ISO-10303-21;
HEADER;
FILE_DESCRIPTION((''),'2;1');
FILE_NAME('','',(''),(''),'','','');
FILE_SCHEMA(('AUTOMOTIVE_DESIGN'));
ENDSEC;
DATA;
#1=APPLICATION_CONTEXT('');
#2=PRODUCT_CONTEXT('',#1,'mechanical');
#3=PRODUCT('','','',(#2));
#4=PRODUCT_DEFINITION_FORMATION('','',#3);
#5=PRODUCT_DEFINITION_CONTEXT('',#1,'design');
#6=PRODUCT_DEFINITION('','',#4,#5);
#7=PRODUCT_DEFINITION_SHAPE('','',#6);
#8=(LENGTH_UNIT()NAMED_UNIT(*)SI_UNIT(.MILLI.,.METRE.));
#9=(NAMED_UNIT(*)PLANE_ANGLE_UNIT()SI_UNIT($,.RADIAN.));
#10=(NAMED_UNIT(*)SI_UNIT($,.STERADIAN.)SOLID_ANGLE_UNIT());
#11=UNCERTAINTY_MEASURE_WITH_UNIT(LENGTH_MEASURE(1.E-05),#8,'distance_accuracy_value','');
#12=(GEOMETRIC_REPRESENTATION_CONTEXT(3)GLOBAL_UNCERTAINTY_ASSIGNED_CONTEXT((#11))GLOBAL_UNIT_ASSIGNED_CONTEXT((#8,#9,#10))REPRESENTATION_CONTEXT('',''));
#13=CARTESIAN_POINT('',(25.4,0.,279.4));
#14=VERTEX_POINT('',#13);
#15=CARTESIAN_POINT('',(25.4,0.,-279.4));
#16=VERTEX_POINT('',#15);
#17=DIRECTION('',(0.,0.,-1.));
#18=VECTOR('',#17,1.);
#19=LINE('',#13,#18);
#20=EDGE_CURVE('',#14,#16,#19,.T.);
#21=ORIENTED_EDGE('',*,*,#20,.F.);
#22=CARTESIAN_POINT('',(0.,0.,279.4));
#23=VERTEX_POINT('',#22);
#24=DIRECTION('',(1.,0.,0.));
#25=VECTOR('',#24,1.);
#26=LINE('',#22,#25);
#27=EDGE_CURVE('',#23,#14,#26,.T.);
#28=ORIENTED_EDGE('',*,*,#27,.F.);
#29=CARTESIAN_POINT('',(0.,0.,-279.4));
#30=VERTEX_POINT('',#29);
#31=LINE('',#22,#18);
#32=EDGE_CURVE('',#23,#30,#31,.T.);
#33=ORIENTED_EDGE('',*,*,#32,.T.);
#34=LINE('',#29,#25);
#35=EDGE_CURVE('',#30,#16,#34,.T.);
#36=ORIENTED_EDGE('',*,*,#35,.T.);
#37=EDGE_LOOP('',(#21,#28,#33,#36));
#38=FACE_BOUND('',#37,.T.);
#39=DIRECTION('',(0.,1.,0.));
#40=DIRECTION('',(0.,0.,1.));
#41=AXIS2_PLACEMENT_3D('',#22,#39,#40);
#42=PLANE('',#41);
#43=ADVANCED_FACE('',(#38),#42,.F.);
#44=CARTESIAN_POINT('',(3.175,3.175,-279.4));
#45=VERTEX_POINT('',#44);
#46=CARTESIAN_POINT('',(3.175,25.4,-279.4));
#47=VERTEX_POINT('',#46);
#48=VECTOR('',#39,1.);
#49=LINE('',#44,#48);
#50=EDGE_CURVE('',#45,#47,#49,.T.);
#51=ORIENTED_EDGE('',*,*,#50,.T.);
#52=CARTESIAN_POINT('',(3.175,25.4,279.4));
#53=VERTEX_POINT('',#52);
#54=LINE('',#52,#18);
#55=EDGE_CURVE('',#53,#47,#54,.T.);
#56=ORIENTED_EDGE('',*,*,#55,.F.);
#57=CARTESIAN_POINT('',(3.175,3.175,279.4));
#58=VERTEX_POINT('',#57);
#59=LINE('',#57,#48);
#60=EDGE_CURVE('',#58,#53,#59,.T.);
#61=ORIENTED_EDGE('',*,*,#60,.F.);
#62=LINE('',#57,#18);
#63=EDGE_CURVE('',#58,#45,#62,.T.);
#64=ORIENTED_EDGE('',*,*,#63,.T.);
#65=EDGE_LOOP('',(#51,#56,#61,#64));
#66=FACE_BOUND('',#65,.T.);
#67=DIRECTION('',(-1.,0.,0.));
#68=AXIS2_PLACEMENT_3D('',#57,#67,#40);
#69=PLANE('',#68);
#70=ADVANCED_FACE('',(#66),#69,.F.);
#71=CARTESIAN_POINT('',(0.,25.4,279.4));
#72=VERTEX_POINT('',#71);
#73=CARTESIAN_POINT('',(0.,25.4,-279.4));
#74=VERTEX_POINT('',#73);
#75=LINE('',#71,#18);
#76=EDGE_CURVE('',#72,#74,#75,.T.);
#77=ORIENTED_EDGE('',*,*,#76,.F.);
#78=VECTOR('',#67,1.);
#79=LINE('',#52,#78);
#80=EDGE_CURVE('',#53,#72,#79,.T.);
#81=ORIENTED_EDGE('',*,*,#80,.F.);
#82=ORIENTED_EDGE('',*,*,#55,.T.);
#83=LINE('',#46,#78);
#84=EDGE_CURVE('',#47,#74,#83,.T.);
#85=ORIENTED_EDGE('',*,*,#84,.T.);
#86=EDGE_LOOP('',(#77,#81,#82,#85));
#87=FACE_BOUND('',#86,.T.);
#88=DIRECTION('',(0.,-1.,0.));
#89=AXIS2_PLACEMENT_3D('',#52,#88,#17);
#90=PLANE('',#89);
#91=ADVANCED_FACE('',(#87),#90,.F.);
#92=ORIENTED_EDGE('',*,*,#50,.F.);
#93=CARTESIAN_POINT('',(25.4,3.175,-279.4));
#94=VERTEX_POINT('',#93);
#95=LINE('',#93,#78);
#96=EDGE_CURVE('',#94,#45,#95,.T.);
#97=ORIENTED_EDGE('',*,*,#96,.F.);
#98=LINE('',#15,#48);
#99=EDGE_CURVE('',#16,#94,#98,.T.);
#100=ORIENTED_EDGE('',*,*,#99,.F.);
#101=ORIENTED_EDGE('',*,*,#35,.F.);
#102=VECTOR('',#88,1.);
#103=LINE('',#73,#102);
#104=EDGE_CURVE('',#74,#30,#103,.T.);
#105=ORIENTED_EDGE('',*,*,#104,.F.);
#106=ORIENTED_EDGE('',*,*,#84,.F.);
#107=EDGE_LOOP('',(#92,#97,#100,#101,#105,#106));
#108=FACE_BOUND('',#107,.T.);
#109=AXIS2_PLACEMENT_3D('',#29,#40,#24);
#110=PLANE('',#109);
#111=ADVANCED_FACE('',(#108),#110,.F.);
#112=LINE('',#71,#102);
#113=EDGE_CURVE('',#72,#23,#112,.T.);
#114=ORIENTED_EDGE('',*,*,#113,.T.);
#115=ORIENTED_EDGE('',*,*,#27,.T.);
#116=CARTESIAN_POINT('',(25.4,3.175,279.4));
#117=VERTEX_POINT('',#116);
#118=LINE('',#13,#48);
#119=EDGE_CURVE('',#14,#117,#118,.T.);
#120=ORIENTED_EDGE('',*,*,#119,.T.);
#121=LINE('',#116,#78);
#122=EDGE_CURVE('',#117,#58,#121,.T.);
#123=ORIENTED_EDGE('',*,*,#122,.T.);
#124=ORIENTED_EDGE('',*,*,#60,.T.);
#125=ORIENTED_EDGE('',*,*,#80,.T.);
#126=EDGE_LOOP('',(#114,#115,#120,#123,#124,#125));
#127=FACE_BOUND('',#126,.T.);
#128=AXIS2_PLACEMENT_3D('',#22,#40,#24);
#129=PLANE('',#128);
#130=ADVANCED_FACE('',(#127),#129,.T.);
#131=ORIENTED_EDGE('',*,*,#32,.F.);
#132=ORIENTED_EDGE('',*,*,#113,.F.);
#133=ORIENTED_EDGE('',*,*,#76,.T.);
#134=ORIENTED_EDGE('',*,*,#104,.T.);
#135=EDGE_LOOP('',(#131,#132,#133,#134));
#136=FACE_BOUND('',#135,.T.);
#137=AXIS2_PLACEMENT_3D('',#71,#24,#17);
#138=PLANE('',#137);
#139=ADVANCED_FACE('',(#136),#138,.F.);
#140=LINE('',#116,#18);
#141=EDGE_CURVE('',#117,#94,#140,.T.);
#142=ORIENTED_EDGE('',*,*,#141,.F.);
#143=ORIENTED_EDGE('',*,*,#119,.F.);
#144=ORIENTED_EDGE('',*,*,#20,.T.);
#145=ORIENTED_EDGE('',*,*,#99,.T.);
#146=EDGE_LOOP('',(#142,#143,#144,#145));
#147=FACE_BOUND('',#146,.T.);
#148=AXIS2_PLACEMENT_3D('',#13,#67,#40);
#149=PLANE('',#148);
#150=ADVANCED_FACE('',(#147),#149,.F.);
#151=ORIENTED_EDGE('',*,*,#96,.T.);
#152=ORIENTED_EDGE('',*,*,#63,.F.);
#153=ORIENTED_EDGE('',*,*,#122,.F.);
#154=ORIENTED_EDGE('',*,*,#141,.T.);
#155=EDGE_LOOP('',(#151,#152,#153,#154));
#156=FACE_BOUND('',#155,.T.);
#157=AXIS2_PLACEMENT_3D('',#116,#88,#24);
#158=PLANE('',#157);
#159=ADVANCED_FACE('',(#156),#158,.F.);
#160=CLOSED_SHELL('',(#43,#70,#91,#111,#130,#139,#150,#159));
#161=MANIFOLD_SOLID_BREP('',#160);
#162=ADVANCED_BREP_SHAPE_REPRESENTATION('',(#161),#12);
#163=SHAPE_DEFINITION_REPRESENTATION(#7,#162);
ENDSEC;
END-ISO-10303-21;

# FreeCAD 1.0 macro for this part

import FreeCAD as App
import Part
import Sketcher
Q = App.Units.Quantity

doc = App.newDocument("Part")
body = doc.addObject("PartDesign::Body", "Body")

sketch1 = doc.addObject("Sketcher::SketchObject", "Sketch")
body.addObject(sketch1)
sketch1.AttachmentSupport = (doc.XY_Plane, [""])
sketch1.MapMode = "FlatFace"
sketch1.addGeometry(Part.LineSegment(App.Vector(0, 25.4, 0), App.Vector(0, 0, 0)), False)
sketch1.addGeometry(Part.LineSegment(App.Vector(0, 0, 0), App.Vector(25.4, 0, 0)), False)
sketch1.addGeometry(Part.LineSegment(App.Vector(25.4, 0, 0), App.Vector(25.4, 3.175, 0)), False)
sketch1.addGeometry(Part.LineSegment(App.Vector(25.4, 3.175, 0), App.Vector(3.175, 3.175, 0)), False)
sketch1.addGeometry(Part.LineSegment(App.Vector(3.175, 3.175, 0), App.Vector(3.175, 25.4, 0)), False)
sketch1.addGeometry(Part.LineSegment(App.Vector(3.175, 25.4, 0), App.Vector(0, 25.4, 0)), False)
sketch1.addConstraint(Sketcher.Constraint("Coincident", 0, 2, 1, 1))
sketch1.addConstraint(Sketcher.Constraint("Coincident", 1, 2, 2, 1))
sketch1.addConstraint(Sketcher.Constraint("Coincident", 2, 2, 3, 1))
sketch1.addConstraint(Sketcher.Constraint("Coincident", 3, 2, 4, 1))
sketch1.addConstraint(Sketcher.Constraint("Coincident", 4, 2, 5, 1))
sketch1.addConstraint(Sketcher.Constraint("Coincident", 5, 2, 0, 1))
sketch1.addConstraint(Sketcher.Constraint("Vertical", 0))
sketch1.addConstraint(Sketcher.Constraint("Horizontal", 1))
sketch1.addConstraint(Sketcher.Constraint("Vertical", 2))
sketch1.addConstraint(Sketcher.Constraint("Horizontal", 3))
sketch1.addConstraint(Sketcher.Constraint("Vertical", 4))
sketch1.addConstraint(Sketcher.Constraint("Horizontal", 5))
sketch1.addConstraint(Sketcher.Constraint("Coincident", 0, 2, -1, 1))
sketch1.addConstraint(Sketcher.Constraint("Equal", 1, 0))
sketch1.addConstraint(Sketcher.Constraint("Equal", 5, 2))
sketch1.addConstraint(Sketcher.Constraint("DistanceX", 1, 1, 1, 2, Q("1 in")))
sketch1.addConstraint(Sketcher.Constraint("DistanceX", 3, 2, 3, 1, Q("0.875 in")))
pad1 = doc.addObject("PartDesign::Pad", "Pad")
body.addObject(pad1)
pad1.Profile = sketch1
pad1.Length = Q("22 in")
pad1.Midplane = True

doc.recompute()
